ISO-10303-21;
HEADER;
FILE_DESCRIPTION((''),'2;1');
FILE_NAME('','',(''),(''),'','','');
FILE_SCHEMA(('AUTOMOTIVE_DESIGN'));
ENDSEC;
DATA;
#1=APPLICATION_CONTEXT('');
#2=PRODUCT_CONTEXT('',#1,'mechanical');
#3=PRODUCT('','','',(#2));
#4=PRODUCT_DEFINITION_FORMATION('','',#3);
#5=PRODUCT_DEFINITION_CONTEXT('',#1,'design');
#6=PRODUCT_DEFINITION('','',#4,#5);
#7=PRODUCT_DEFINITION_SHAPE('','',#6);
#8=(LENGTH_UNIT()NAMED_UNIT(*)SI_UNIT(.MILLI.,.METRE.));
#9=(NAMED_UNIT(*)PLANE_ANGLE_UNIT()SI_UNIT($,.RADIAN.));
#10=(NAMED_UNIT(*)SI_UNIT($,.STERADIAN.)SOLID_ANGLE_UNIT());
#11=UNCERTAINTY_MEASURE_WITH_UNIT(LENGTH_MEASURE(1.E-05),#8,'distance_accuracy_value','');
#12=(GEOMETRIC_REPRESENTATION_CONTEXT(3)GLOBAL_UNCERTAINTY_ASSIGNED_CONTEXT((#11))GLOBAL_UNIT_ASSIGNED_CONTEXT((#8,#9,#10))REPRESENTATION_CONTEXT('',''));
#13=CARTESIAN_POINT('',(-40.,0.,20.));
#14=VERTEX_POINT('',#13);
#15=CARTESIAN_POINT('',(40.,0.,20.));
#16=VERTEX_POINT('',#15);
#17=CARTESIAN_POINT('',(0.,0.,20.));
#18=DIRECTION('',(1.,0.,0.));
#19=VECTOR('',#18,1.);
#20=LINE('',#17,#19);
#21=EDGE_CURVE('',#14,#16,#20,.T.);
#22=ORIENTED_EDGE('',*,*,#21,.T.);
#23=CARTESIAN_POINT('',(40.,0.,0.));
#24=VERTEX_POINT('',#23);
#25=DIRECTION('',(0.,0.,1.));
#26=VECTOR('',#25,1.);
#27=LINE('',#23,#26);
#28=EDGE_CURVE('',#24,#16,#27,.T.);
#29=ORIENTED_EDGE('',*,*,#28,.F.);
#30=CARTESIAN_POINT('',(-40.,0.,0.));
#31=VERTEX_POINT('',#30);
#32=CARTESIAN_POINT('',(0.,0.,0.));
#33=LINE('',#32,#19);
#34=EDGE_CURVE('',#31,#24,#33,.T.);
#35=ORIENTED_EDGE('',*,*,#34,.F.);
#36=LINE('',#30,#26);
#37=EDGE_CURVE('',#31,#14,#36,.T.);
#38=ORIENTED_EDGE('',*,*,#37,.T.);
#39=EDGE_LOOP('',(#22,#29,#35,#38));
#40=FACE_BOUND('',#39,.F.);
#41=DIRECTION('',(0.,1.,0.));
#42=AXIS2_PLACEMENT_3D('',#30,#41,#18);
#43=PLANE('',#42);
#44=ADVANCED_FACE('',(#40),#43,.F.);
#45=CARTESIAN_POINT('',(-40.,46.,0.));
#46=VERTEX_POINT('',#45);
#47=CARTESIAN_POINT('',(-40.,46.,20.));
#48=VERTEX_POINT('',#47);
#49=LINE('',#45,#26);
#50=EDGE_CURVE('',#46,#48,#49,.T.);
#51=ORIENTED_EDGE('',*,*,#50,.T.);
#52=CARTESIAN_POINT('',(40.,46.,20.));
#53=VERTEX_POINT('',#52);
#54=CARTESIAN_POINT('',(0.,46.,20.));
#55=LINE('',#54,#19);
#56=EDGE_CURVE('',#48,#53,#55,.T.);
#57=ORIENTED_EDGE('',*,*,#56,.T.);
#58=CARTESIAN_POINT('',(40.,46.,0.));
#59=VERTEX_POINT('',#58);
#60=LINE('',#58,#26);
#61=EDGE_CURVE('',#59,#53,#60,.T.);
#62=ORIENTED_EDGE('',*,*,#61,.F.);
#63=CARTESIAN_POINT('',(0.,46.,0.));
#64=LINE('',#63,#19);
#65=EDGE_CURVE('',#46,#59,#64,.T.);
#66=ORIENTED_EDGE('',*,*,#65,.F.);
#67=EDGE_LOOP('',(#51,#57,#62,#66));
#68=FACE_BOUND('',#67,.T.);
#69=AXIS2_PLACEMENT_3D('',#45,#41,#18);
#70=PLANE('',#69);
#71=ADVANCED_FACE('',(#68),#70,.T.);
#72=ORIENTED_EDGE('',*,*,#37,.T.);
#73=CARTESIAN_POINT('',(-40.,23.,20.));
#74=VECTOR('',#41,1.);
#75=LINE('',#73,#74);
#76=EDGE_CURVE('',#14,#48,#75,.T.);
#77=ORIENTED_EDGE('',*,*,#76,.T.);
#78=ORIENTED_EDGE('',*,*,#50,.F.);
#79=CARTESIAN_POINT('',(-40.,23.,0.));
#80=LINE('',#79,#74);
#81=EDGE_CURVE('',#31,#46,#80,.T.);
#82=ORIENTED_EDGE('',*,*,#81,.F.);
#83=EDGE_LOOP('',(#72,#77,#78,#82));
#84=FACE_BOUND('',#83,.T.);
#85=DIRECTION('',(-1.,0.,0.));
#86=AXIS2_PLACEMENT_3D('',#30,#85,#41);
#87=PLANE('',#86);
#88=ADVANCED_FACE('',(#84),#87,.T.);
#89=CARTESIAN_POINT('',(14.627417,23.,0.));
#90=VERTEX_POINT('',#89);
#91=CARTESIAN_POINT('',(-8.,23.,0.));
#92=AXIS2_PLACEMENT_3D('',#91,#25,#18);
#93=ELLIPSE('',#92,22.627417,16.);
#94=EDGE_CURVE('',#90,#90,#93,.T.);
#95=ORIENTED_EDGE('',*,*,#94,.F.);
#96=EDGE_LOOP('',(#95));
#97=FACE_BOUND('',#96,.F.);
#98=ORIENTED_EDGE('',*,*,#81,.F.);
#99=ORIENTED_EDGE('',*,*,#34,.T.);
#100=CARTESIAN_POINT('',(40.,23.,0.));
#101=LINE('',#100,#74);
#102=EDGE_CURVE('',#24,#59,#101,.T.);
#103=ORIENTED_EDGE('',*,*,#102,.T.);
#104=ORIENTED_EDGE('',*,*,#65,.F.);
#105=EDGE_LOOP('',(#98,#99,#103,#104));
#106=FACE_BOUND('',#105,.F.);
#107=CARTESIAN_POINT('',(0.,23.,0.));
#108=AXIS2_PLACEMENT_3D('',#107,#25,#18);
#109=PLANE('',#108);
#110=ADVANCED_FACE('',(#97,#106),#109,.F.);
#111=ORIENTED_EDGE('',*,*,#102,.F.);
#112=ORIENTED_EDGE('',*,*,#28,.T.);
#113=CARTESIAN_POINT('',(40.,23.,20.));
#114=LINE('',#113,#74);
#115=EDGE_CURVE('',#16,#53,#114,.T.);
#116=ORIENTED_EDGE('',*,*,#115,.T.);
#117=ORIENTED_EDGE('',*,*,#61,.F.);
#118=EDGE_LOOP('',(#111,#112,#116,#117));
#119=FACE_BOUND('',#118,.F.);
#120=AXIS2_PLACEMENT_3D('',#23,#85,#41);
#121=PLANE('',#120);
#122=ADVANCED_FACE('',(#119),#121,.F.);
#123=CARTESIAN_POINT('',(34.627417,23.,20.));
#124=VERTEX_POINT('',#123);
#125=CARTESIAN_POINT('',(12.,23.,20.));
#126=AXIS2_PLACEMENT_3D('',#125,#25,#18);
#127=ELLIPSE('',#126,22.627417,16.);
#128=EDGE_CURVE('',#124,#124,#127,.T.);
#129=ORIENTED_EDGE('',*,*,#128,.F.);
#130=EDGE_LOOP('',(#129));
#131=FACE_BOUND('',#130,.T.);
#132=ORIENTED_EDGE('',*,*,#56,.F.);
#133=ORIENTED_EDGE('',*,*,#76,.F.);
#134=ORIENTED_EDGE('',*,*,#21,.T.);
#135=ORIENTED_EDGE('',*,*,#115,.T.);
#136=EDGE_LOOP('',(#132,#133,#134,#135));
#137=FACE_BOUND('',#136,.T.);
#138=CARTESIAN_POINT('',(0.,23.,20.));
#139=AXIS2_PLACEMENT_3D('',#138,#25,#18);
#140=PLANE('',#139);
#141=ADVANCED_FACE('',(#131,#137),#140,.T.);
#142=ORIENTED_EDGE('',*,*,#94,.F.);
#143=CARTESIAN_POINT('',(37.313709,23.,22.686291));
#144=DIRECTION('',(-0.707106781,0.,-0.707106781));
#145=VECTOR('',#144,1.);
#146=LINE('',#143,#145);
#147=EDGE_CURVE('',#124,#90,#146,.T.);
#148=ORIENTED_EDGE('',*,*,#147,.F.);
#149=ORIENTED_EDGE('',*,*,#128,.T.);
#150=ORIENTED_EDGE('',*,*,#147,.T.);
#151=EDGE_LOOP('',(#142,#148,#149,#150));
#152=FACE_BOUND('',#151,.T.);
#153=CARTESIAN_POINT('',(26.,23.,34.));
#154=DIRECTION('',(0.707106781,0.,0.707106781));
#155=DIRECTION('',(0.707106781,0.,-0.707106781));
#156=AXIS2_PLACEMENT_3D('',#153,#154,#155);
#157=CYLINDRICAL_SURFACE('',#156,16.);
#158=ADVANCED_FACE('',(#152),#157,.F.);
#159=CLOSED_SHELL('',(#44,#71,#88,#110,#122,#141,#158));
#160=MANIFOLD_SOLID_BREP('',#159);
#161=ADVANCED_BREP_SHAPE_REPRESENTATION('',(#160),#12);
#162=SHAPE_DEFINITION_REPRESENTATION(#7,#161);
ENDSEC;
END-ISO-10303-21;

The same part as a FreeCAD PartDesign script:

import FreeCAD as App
import Part
import Sketcher


def add_polygon(sketch, points):
    """Adds a closed chain of lines whose ends are joined by coincident constraints."""
    first, n = sketch.GeometryCount, len(points)
    for a, b in zip(points, points[1:] + points[:1]):
        sketch.addGeometry(Part.LineSegment(App.Vector(*a, 0), App.Vector(*b, 0)), False)
    for i in range(n):
        sketch.addConstraint(Sketcher.Constraint("Coincident", first + i, 2, first + (i + 1) % n, 1))

doc = App.newDocument("Part")
body = doc.addObject("PartDesign::Body", "Body")

# Sketch on XY plane
sketch1 = body.newObject("Sketcher::SketchObject", "Sketch")
sketch1.AttachmentSupport = (doc.getObject("XY_Plane"), [""])
sketch1.MapMode = "FlatFace"
add_polygon(sketch1, [(-40, 46), (-40, 0), (40, 0), (40, 46)])  # lines 0-3
sketch1.addConstraint([
    Sketcher.Constraint("Vertical", 0),
    Sketcher.Constraint("Horizontal", 1),
    Sketcher.Constraint("Vertical", 2),
    Sketcher.Constraint("Horizontal", 3),
    Sketcher.Constraint("Symmetric", 0, 2, 1, 2, -1, 1),
    Sketcher.Constraint("DistanceX", 1, 1, 1, 2, 80.0),
    Sketcher.Constraint("DistanceY", 0, 2, 0, 1, 46.0),
])
pad1 = body.newObject("PartDesign::Pad", "Pad")
pad1.Profile = sketch1
pad1.Length = 20

# Sketch on an angled plane
sketch2 = body.newObject("Sketcher::SketchObject", "Sketch001")
sketch2.Placement = App.Placement(App.Vector(30, 0, 30), App.Rotation(App.Vector(0.707106781, 0, -0.707106781), App.Vector(0, -0.999999999, 0), App.Vector(-0.707106781, 0, -0.707106781), "ZXY"))
sketch2.addGeometry(Part.Circle(App.Vector(-6, -23, 0), App.Vector(0, 0, 1), 16), False)
sketch2.addConstraint([
    Sketcher.Constraint("Diameter", 0, 32.0),
    Sketcher.Constraint("DistanceY", 0, 3, -1, 1, 23.0),
    Sketcher.Constraint("DistanceX", 0, 3, -1, 1, 5.656854),
])
pocket1 = body.newObject("PartDesign::Pocket", "Pocket")
pocket1.Profile = sketch2
pocket1.Type = "ThroughAll"
pocket1.Reversed = True

doc.recompute()
